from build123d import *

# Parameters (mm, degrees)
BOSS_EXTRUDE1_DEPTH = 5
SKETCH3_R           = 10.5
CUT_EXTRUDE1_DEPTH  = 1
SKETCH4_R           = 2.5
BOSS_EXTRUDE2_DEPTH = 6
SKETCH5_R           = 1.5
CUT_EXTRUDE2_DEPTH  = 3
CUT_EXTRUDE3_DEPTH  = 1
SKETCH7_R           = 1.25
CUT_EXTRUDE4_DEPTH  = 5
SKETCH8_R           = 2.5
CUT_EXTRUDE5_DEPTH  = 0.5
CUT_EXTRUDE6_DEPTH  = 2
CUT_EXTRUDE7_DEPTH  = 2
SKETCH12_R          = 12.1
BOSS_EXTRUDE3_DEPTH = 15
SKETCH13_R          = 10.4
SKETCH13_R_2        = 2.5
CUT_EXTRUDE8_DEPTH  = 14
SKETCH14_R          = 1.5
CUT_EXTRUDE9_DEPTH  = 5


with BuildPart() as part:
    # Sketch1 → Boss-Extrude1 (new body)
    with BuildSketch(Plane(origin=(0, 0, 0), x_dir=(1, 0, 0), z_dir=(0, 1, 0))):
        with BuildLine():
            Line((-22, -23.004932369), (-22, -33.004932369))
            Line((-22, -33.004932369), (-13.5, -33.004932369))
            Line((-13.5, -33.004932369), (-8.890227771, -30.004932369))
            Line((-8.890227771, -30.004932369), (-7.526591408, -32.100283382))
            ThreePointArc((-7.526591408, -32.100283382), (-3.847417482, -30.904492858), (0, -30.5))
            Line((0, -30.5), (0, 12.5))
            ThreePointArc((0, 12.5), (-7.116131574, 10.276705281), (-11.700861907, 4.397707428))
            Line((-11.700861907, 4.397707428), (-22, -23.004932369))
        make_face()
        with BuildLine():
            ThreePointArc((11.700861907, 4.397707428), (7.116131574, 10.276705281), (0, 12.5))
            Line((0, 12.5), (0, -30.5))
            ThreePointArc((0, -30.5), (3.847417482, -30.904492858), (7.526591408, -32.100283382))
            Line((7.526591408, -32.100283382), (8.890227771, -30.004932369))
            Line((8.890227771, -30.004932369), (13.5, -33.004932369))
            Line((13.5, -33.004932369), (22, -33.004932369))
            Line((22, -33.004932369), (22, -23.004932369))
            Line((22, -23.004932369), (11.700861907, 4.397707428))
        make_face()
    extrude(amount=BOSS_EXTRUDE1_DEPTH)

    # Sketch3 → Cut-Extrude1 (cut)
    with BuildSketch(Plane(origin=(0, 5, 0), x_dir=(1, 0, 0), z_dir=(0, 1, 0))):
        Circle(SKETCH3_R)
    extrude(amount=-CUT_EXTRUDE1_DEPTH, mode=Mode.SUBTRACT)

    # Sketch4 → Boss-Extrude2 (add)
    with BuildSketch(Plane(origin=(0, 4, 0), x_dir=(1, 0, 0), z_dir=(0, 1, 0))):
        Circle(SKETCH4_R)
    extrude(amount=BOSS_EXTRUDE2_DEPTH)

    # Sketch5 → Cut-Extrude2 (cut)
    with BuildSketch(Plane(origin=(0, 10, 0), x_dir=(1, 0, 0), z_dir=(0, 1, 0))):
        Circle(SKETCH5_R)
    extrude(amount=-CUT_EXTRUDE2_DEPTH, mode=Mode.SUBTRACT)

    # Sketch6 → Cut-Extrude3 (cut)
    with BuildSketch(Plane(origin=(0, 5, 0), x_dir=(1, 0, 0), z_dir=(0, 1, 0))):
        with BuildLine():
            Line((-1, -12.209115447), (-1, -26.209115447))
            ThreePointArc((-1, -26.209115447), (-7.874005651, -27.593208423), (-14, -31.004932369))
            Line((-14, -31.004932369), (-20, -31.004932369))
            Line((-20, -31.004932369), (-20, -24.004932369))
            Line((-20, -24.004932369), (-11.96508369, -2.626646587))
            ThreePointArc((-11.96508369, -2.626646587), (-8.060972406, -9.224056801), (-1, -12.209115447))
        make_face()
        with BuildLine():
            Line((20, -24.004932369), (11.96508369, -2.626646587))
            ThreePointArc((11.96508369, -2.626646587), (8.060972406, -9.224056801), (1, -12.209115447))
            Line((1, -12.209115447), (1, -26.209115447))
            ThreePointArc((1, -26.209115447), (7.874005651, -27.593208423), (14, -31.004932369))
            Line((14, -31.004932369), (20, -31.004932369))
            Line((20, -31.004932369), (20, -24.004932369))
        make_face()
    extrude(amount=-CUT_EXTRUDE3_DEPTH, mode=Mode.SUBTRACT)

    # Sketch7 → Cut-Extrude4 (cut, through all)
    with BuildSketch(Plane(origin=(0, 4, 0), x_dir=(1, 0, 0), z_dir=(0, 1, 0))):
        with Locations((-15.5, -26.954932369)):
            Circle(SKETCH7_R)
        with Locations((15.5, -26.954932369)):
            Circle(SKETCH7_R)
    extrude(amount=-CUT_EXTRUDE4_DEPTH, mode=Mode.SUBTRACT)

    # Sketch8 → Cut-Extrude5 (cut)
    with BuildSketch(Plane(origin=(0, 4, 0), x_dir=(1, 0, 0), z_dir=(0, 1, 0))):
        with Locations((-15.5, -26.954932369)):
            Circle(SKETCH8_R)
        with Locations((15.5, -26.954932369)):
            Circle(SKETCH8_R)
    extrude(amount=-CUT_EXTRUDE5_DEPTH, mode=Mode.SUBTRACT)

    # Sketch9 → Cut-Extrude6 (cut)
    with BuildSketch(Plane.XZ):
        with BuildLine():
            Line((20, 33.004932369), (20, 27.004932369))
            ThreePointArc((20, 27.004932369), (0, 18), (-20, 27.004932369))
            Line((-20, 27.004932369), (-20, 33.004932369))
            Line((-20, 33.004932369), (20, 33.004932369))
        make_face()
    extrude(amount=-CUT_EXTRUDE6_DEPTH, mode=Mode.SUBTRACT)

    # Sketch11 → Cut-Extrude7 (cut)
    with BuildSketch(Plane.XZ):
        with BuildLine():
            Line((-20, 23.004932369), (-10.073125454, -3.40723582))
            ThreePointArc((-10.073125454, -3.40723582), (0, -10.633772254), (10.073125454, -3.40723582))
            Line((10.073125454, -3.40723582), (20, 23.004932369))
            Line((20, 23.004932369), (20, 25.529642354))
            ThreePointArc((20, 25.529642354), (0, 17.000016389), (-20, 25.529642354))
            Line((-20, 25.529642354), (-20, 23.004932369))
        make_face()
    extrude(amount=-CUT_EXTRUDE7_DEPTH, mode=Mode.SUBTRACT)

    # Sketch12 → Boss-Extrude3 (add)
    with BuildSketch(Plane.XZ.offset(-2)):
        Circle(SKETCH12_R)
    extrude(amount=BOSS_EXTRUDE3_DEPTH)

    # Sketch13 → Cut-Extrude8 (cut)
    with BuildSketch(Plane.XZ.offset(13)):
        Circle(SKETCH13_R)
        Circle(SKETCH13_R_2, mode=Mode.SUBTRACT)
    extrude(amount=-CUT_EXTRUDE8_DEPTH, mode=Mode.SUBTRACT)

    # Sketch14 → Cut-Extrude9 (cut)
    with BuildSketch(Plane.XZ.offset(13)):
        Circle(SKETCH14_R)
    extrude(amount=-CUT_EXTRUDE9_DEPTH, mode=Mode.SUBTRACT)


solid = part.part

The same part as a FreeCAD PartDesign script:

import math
import FreeCAD as App
import Part
import Sketcher

doc = App.newDocument("Part")
params = doc.addObject("Spreadsheet::Sheet", "Params")
for row, (alias, value) in enumerate([
    ("sketch1_radius", "18.5 mm"),
    ("sketch1_radius2", "12.5 mm"),
    ("sketch1_height", "10 mm"),
    ("sketch1_width", "8.5 mm"),
    ("sketch1_length", "5.5 mm"),
    ("pad1_length", "5 mm"),
    ("sketch2_diameter", "21 mm"),
    ("pocket1_length", "1 mm"),
    ("sketch3_diameter", "5 mm"),
    ("pad2_length", "6 mm"),
    ("sketch4_diameter", "3 mm"),
    ("pocket2_length", "3 mm"),
    ("sketch5_width", "6 mm"),
    ("sketch5_height", "14 mm"),
    ("sketch5_height2", "7 mm"),
    ("sketch5_radius", "12.25 mm"),
    ("pocket3_length", "1 mm"),
    ("sketch6_diameter", "2.5 mm"),
    ("sketch7_diameter", "5 mm"),
    ("pocket5_length", "0.5 mm"),
    ("sketch8_width", "40 mm"),
    ("sketch8_height", "6 mm"),
    ("pocket6_length", "2 mm"),
    ("pocket7_length", "2 mm"),
    ("sketch10_diameter", "24.2 mm"),
    ("pad3_length", "15 mm"),
    ("sketch11_diameter", "5 mm"),
    ("sketch11_diameter2", "20.8 mm"),
    ("pocket8_length", "14 mm"),
    ("sketch12_diameter", "3 mm"),
    ("pocket9_length", "5 mm"),
], start=1):
    params.set(f"A{row}", alias)
    params.set(f"B{row}", "=" + value)
    params.setAlias(f"B{row}", alias)

body = doc.addObject("PartDesign::Body", "Body")

sketch1 = body.newObject("Sketcher::SketchObject", "Sketch")
sketch1.AttachmentSupport = (doc.getObject("XZ_Plane"), [""])
sketch1.MapMode = "FlatFace"
sketch1.addGeometry(Part.LineSegment(App.Vector(-22, 23, 0), App.Vector(-22, 33, 0)), False)
sketch1.addGeometry(Part.LineSegment(App.Vector(-22, 33, 0), App.Vector(-13.5, 33, 0)), False)
sketch1.addGeometry(Part.LineSegment(App.Vector(-13.5, 33, 0), App.Vector(-8.9, 30, 0)), False)
sketch1.addGeometry(Part.LineSegment(App.Vector(-8.9, 30, 0), App.Vector(-7.5, 32.1, 0)), False)
sketch1.addGeometry(Part.ArcOfCircle(Part.Circle(App.Vector(0, 49, 0), App.Vector(0, 0, 1), 18.5), math.radians(-114), math.radians(-90)), False)
sketch1.addGeometry(Part.ArcOfCircle(Part.Circle(App.Vector(0, 49, 0), App.Vector(0, 0, 1), 18.5), math.radians(-90), math.radians(-66)), False)
sketch1.addGeometry(Part.LineSegment(App.Vector(7.5, 32.1, 0), App.Vector(8.9, 30, 0)), False)
sketch1.addGeometry(Part.LineSegment(App.Vector(8.9, 30, 0), App.Vector(13.5, 33, 0)), False)
sketch1.addGeometry(Part.LineSegment(App.Vector(13.5, 33, 0), App.Vector(22, 33, 0)), False)
sketch1.addGeometry(Part.LineSegment(App.Vector(22, 33, 0), App.Vector(22, 23, 0)), False)
sketch1.addGeometry(Part.LineSegment(App.Vector(22, 23, 0), App.Vector(11.7, -4.4, 0)), False)
sketch1.addGeometry(Part.ArcOfCircle(Part.Circle(App.Vector(0, 0, 0), App.Vector(0, 0, 1), 12.5), math.radians(-90), math.radians(-21)), False)
sketch1.addGeometry(Part.ArcOfCircle(Part.Circle(App.Vector(0, 0, 0), App.Vector(0, 0, 1), 12.5), math.radians(-159), math.radians(-90)), False)
sketch1.addGeometry(Part.LineSegment(App.Vector(-11.7, -4.4, 0), App.Vector(-22, 23, 0)), False)
sketch1.addConstraint(Sketcher.Constraint("Coincident", 0, 2, 1, 1))
sketch1.addConstraint(Sketcher.Constraint("Coincident", 1, 2, 2, 1))
sketch1.addConstraint(Sketcher.Constraint("Coincident", 2, 2, 3, 1))
sketch1.addConstraint(Sketcher.Constraint("Coincident", 3, 2, 4, 1))
sketch1.addConstraint(Sketcher.Constraint("Tangent", 4, 2, 5, 1))
sketch1.addConstraint(Sketcher.Constraint("Coincident", 5, 2, 6, 1))
sketch1.addConstraint(Sketcher.Constraint("Coincident", 6, 2, 7, 1))
sketch1.addConstraint(Sketcher.Constraint("Coincident", 7, 2, 8, 1))
sketch1.addConstraint(Sketcher.Constraint("Coincident", 8, 2, 9, 1))
sketch1.addConstraint(Sketcher.Constraint("Coincident", 9, 2, 10, 1))
sketch1.addConstraint(Sketcher.Constraint("Tangent", 10, 2, 11, 2))
sketch1.addConstraint(Sketcher.Constraint("Tangent", 11, 1, 12, 2))
sketch1.addConstraint(Sketcher.Constraint("Tangent", 12, 1, 13, 1))
sketch1.addConstraint(Sketcher.Constraint("Coincident", 13, 2, 0, 1))
sketch1.addConstraint(Sketcher.Constraint("Vertical", 0))
sketch1.addConstraint(Sketcher.Constraint("Horizontal", 1))
sketch1.addConstraint(Sketcher.Constraint("Horizontal", 8))
sketch1.addConstraint(Sketcher.Constraint("Vertical", 9))
sketch1.addConstraint(Sketcher.Constraint("Coincident", 11, 3, -1, 1))
sketch1.addConstraint(Sketcher.Constraint("Equal", 4, 5))
sketch1.addConstraint(Sketcher.Constraint("Equal", 11, 12))
sketch1.addConstraint(Sketcher.Constraint("Symmetric", 3, 2, 5, 2, -2))
sketch1.addConstraint(Sketcher.Constraint("Symmetric", 2, 2, 6, 2, -2))
sketch1.addConstraint(Sketcher.Constraint("Symmetric", 1, 2, 7, 2, -2))
sketch1.addConstraint(Sketcher.Constraint("Symmetric", 9, 2, 13, 2, -2))
sketch1.addConstraint(Sketcher.Constraint("PointOnObject", 4, 2, -2))
sketch1.addConstraint(Sketcher.Constraint("PointOnObject", 11, 1, -2))
sketch1.addConstraint(Sketcher.Constraint("Perpendicular", 2, 3))
sketch1.addConstraint(Sketcher.Constraint("Radius", 4, 18.5))
sketch1.addConstraint(Sketcher.Constraint("Radius", 11, 12.5))
sketch1.addConstraint(Sketcher.Constraint("DistanceY", 0, 1, 0, 2, 10.0))
sketch1.addConstraint(Sketcher.Constraint("DistanceX", 1, 1, 1, 2, 8.5))
sketch1.addConstraint(Sketcher.Constraint("DistanceY", -1, 1, 4, 3, 49.0))
sketch1.addConstraint(Sketcher.Constraint("DistanceX", 0, 2, -1, 1, 22.0))
sketch1.addConstraint(Sketcher.Constraint("DistanceY", 2, 2, 1, 2, 3.0))
sketch1.addConstraint(Sketcher.Constraint("Distance", 2, 5.5))
sketch1.addConstraint(Sketcher.Constraint("Distance", 3, 2.5))
sketch1.setExpression("Constraints[28]", "Params.sketch1_radius")
sketch1.setExpression("Constraints[29]", "Params.sketch1_radius2")
sketch1.setExpression("Constraints[30]", "Params.sketch1_height")
sketch1.setExpression("Constraints[31]", "Params.sketch1_width")
sketch1.setExpression("Constraints[35]", "Params.sketch1_length")
pad1 = body.newObject("PartDesign::Pad", "Pad")
pad1.Profile = sketch1
pad1.setExpression("Length", "Params.pad1_length")
pad1.Reversed = True

sketch2 = body.newObject("Sketcher::SketchObject", "Sketch001")
sketch2.AttachmentSupport = (doc.getObject("XZ_Plane"), [""])
sketch2.MapMode = "FlatFace"
sketch2.AttachmentOffset = App.Placement(App.Vector(0, 0, -5), App.Rotation())
sketch2.addGeometry(Part.Circle(App.Vector(0, 0, 0), App.Vector(0, 0, 1), 10), False)
sketch2.addConstraint(Sketcher.Constraint("Coincident", 0, 3, -1, 1))
sketch2.addConstraint(Sketcher.Constraint("Diameter", 0, 21.0))
sketch2.setExpression("Constraints[1]", "Params.sketch2_diameter")
pocket1 = body.newObject("PartDesign::Pocket", "Pocket")
pocket1.Profile = sketch2
pocket1.setExpression("Length", "Params.pocket1_length")
pocket1.Reversed = True

sketch3 = body.newObject("Sketcher::SketchObject", "Sketch002")
sketch3.AttachmentSupport = (doc.getObject("XZ_Plane"), [""])
sketch3.MapMode = "FlatFace"
sketch3.AttachmentOffset = App.Placement(App.Vector(0, 0, -4), App.Rotation())
sketch3.addGeometry(Part.Circle(App.Vector(0, 0, 0), App.Vector(0, 0, 1), 2.5), False)
sketch3.addConstraint(Sketcher.Constraint("Coincident", 0, 3, -1, 1))
sketch3.addConstraint(Sketcher.Constraint("Diameter", 0, 5.0))
sketch3.setExpression("Constraints[1]", "Params.sketch3_diameter")
pad2 = body.newObject("PartDesign::Pad", "Pad001")
pad2.Profile = sketch3
pad2.setExpression("Length", "Params.pad2_length")
pad2.Reversed = True

sketch4 = body.newObject("Sketcher::SketchObject", "Sketch003")
sketch4.AttachmentSupport = (doc.getObject("XZ_Plane"), [""])
sketch4.MapMode = "FlatFace"
sketch4.AttachmentOffset = App.Placement(App.Vector(0, 0, -10), App.Rotation())
sketch4.addGeometry(Part.Circle(App.Vector(0, 0, 0), App.Vector(0, 0, 1), 1.5), False)
sketch4.addConstraint(Sketcher.Constraint("Coincident", 0, 3, -1, 1))
sketch4.addConstraint(Sketcher.Constraint("Diameter", 0, 3.0))
sketch4.setExpression("Constraints[1]", "Params.sketch4_diameter")
pocket2 = body.newObject("PartDesign::Pocket", "Pocket001")
pocket2.Profile = sketch4
pocket2.setExpression("Length", "Params.pocket2_length")
pocket2.Reversed = True

sketch5 = body.newObject("Sketcher::SketchObject", "Sketch004")
sketch5.AttachmentSupport = (doc.getObject("XZ_Plane"), [""])
sketch5.MapMode = "FlatFace"
sketch5.AttachmentOffset = App.Placement(App.Vector(0, 0, -5), App.Rotation())
sketch5.addGeometry(Part.LineSegment(App.Vector(-1, 26, 0), App.Vector(-1, 12, 0)), False)
sketch5.addGeometry(Part.ArcOfCircle(Part.Circle(App.Vector(0, 0, 0), App.Vector(0, 0, 1), 12), math.radians(95), math.radians(168)), False)
sketch5.addGeometry(Part.LineSegment(App.Vector(-12, 3, 0), App.Vector(-20, 24, 0)), False)
sketch5.addGeometry(Part.LineSegment(App.Vector(-20, 24, 0), App.Vector(-20, 31, 0)), False)
sketch5.addGeometry(Part.LineSegment(App.Vector(-20, 31, 0), App.Vector(-14, 31, 0)), False)
sketch5.addGeometry(Part.ArcOfCircle(Part.Circle(App.Vector(0, 49, 0), App.Vector(0, 0, 1), 23), math.radians(-128), math.radians(-93)), False)
sketch5.addGeometry(Part.LineSegment(App.Vector(20, 24, 0), App.Vector(12, 3, 0)), False)
sketch5.addGeometry(Part.ArcOfCircle(Part.Circle(App.Vector(0, 0, 0), App.Vector(0, 0, 1), 12), math.radians(12), math.radians(85)), False)
sketch5.addGeometry(Part.LineSegment(App.Vector(1, 12, 0), App.Vector(1, 26, 0)), False)
sketch5.addGeometry(Part.ArcOfCircle(Part.Circle(App.Vector(0, 49, 0), App.Vector(0, 0, 1), 23), math.radians(-87), math.radians(-52)), False)
sketch5.addGeometry(Part.LineSegment(App.Vector(14, 31, 0), App.Vector(20, 31, 0)), False)
sketch5.addGeometry(Part.LineSegment(App.Vector(20, 31, 0), App.Vector(20, 24, 0)), False)
sketch5.addConstraint(Sketcher.Constraint("Coincident", 0, 2, 1, 1))
sketch5.addConstraint(Sketcher.Constraint("Coincident", 1, 2, 2, 1))
sketch5.addConstraint(Sketcher.Constraint("Coincident", 2, 2, 3, 1))
sketch5.addConstraint(Sketcher.Constraint("Coincident", 3, 2, 4, 1))
sketch5.addConstraint(Sketcher.Constraint("Coincident", 4, 2, 5, 1))
sketch5.addConstraint(Sketcher.Constraint("Coincident", 5, 2, 0, 1))
sketch5.addConstraint(Sketcher.Constraint("Coincident", 6, 2, 7, 1))
sketch5.addConstraint(Sketcher.Constraint("Coincident", 7, 2, 8, 1))
sketch5.addConstraint(Sketcher.Constraint("Coincident", 8, 2, 9, 1))
sketch5.addConstraint(Sketcher.Constraint("Coincident", 9, 2, 10, 1))
sketch5.addConstraint(Sketcher.Constraint("Coincident", 10, 2, 11, 1))
sketch5.addConstraint(Sketcher.Constraint("Coincident", 11, 2, 6, 1))
sketch5.addConstraint(Sketcher.Constraint("Vertical", 0))
sketch5.addConstraint(Sketcher.Constraint("Vertical", 3))
sketch5.addConstraint(Sketcher.Constraint("Horizontal", 4))
sketch5.addConstraint(Sketcher.Constraint("Vertical", 8))
sketch5.addConstraint(Sketcher.Constraint("Horizontal", 10))
sketch5.addConstraint(Sketcher.Constraint("Vertical", 11))
sketch5.addConstraint(Sketcher.Constraint("Coincident", 1, 3, -1, 1))
sketch5.addConstraint(Sketcher.Constraint("Coincident", 7, 3, -1, 1))
sketch5.addConstraint(Sketcher.Constraint("Coincident", 9, 3, 5, 3))
sketch5.addConstraint(Sketcher.Constraint("Equal", 1, 7))
sketch5.addConstraint(Sketcher.Constraint("Equal", 5, 9))
sketch5.addConstraint(Sketcher.Constraint("Symmetric", 5, 2, 8, 2, -2))
sketch5.addConstraint(Sketcher.Constraint("Symmetric", 3, 2, 10, 2, -2))
sketch5.addConstraint(Sketcher.Constraint("Horizontal", 1, 2, 6, 2))
sketch5.addConstraint(Sketcher.Constraint("Horizontal", 2, 2, 11, 2))
sketch5.addConstraint(Sketcher.Constraint("DistanceX", 4, 1, 4, 2, 6.0))
sketch5.addConstraint(Sketcher.Constraint("DistanceY", 0, 2, 0, 1, 14.0))
sketch5.addConstraint(Sketcher.Constraint("DistanceY", 3, 1, 3, 2, 7.0))
sketch5.addConstraint(Sketcher.Constraint("Radius", 1, 12.25))
sketch5.addConstraint(Sketcher.Constraint("DistanceX", 0, 2, -1, 1, 1.0))
sketch5.addConstraint(Sketcher.Constraint("DistanceX", 2, 2, -1, 1, 20.0))
sketch5.addConstraint(Sketcher.Constraint("Radius", 5, 22.750114))
sketch5.addConstraint(Sketcher.Constraint("DistanceY", 1, 2, 0, 2, 9.582469))
sketch5.setExpression("Constraints[27]", "Params.sketch5_width")
sketch5.setExpression("Constraints[28]", "Params.sketch5_height")
sketch5.setExpression("Constraints[29]", "Params.sketch5_height2")
sketch5.setExpression("Constraints[30]", "Params.sketch5_radius")
pocket3 = body.newObject("PartDesign::Pocket", "Pocket002")
pocket3.Profile = sketch5
pocket3.setExpression("Length", "Params.pocket3_length")
pocket3.Reversed = True

sketch6 = body.newObject("Sketcher::SketchObject", "Sketch005")
sketch6.AttachmentSupport = (doc.getObject("XZ_Plane"), [""])
sketch6.MapMode = "FlatFace"
sketch6.AttachmentOffset = App.Placement(App.Vector(0, 0, -4), App.Rotation())
sketch6.addGeometry(Part.Circle(App.Vector(-15.5, 27, 0), App.Vector(0, 0, 1), 1.2), False)
sketch6.addGeometry(Part.Circle(App.Vector(15.5, 27, 0), App.Vector(0, 0, 1), 1.2), False)
sketch6.addConstraint(Sketcher.Constraint("Equal", 0, 1))
sketch6.addConstraint(Sketcher.Constraint("Symmetric", 0, 3, 1, 3, -2))
sketch6.addConstraint(Sketcher.Constraint("Diameter", 0, 2.5))
sketch6.addConstraint(Sketcher.Constraint("DistanceX", 0, 3, 1, 3, 31.0))
sketch6.addConstraint(Sketcher.Constraint("DistanceY", -1, 1, 0, 3, 26.954932))
sketch6.setExpression("Constraints[2]", "Params.sketch6_diameter")
pocket4 = body.newObject("PartDesign::Pocket", "Pocket003")
pocket4.Profile = sketch6
pocket4.Type = "ThroughAll"
pocket4.Reversed = True

sketch7 = body.newObject("Sketcher::SketchObject", "Sketch006")
sketch7.AttachmentSupport = (doc.getObject("XZ_Plane"), [""])
sketch7.MapMode = "FlatFace"
sketch7.AttachmentOffset = App.Placement(App.Vector(0, 0, -4), App.Rotation())
sketch7.addGeometry(Part.Circle(App.Vector(-15.5, 27, 0), App.Vector(0, 0, 1), 2.5), False)
sketch7.addGeometry(Part.Circle(App.Vector(15.5, 27, 0), App.Vector(0, 0, 1), 2.5), False)
sketch7.addConstraint(Sketcher.Constraint("Equal", 0, 1))
sketch7.addConstraint(Sketcher.Constraint("Symmetric", 0, 3, 1, 3, -2))
sketch7.addConstraint(Sketcher.Constraint("Diameter", 0, 5.0))
sketch7.addConstraint(Sketcher.Constraint("DistanceX", 0, 3, 1, 3, 31.0))
sketch7.addConstraint(Sketcher.Constraint("DistanceY", -1, 1, 0, 3, 26.954932))
sketch7.setExpression("Constraints[2]", "Params.sketch7_diameter")
pocket5 = body.newObject("PartDesign::Pocket", "Pocket004")
pocket5.Profile = sketch7
pocket5.setExpression("Length", "Params.pocket5_length")
pocket5.Reversed = True

sketch8 = body.newObject("Sketcher::SketchObject", "Sketch007")
sketch8.AttachmentSupport = (doc.getObject("XZ_Plane"), [""])
sketch8.MapMode = "FlatFace"
sketch8.addGeometry(Part.LineSegment(App.Vector(20, 27, 0), App.Vector(20, 33, 0)), False)
sketch8.addGeometry(Part.LineSegment(App.Vector(20, 33, 0), App.Vector(-20, 33, 0)), False)
sketch8.addGeometry(Part.LineSegment(App.Vector(-20, 33, 0), App.Vector(-20, 27, 0)), False)
sketch8.addGeometry(Part.ArcOfCircle(Part.Circle(App.Vector(0, 45, 0), App.Vector(0, 0, 1), 27), math.radians(-138), math.radians(-42)), False)
sketch8.addConstraint(Sketcher.Constraint("Coincident", 0, 2, 1, 1))
sketch8.addConstraint(Sketcher.Constraint("Coincident", 1, 2, 2, 1))
sketch8.addConstraint(Sketcher.Constraint("Coincident", 2, 2, 3, 1))
sketch8.addConstraint(Sketcher.Constraint("Coincident", 3, 2, 0, 1))
sketch8.addConstraint(Sketcher.Constraint("Vertical", 0))
sketch8.addConstraint(Sketcher.Constraint("Horizontal", 1))
sketch8.addConstraint(Sketcher.Constraint("Vertical", 2))
sketch8.addConstraint(Sketcher.Constraint("Symmetric", 2, 2, 3, 2, -2))
sketch8.addConstraint(Sketcher.Constraint("DistanceX", 1, 2, 1, 1, 40.0))
sketch8.addConstraint(Sketcher.Constraint("DistanceY", 0, 1, 0, 2, 6.0))
sketch8.addConstraint(Sketcher.Constraint("Radius", 3, 26.712516))
sketch8.addConstraint(Sketcher.Constraint("DistanceY", -1, 1, 3, 3, 44.712516))
sketch8.setExpression("Constraints[8]", "Params.sketch8_width")
sketch8.setExpression("Constraints[9]", "Params.sketch8_height")
pocket6 = body.newObject("PartDesign::Pocket", "Pocket005")
pocket6.Profile = sketch8
pocket6.setExpression("Length", "Params.pocket6_length")

sketch9 = body.newObject("Sketcher::SketchObject", "Sketch008")
sketch9.AttachmentSupport = (doc.getObject("XZ_Plane"), [""])
sketch9.MapMode = "FlatFace"
sketch9.addGeometry(Part.LineSegment(App.Vector(-20, 23, 0), App.Vector(-10.1, -3.4, 0)), False)
sketch9.addGeometry(Part.ArcOfCircle(Part.Circle(App.Vector(0, 0, 0), App.Vector(0, 0, 1), 10.6), math.radians(-161), math.radians(-19)), False)
sketch9.addGeometry(Part.LineSegment(App.Vector(10.1, -3.4, 0), App.Vector(20, 23, 0)), False)
sketch9.addGeometry(Part.LineSegment(App.Vector(20, 23, 0), App.Vector(20, 25.5, 0)), False)
sketch9.addGeometry(Part.ArcOfCircle(Part.Circle(App.Vector(0, 44.7, 0), App.Vector(0, 0, 1), 27.7), math.radians(-136), math.radians(-44)), False)
sketch9.addGeometry(Part.LineSegment(App.Vector(-20, 25.5, 0), App.Vector(-20, 23, 0)), False)
sketch9.addConstraint(Sketcher.Constraint("Coincident", 0, 2, 1, 1))
sketch9.addConstraint(Sketcher.Constraint("Coincident", 1, 2, 2, 1))
sketch9.addConstraint(Sketcher.Constraint("Coincident", 2, 2, 3, 1))
sketch9.addConstraint(Sketcher.Constraint("Coincident", 3, 2, 4, 2))
sketch9.addConstraint(Sketcher.Constraint("Coincident", 4, 1, 5, 1))
sketch9.addConstraint(Sketcher.Constraint("Coincident", 5, 2, 0, 1))
sketch9.addConstraint(Sketcher.Constraint("Vertical", 3))
sketch9.addConstraint(Sketcher.Constraint("Vertical", 5))
sketch9.addConstraint(Sketcher.Constraint("Coincident", 1, 3, -1, 1))
sketch9.addConstraint(Sketcher.Constraint("Symmetric", 3, 2, 4, 1, -2))
sketch9.addConstraint(Sketcher.Constraint("Horizontal", 0, 2, 1, 2))
sketch9.addConstraint(Sketcher.Constraint("Horizontal", 2, 2, 5, 2))
sketch9.addConstraint(Sketcher.Constraint("DistanceX", -1, 1, 2, 2, 20.0))
sketch9.addConstraint(Sketcher.Constraint("Radius", 4, 27.7125))
sketch9.addConstraint(Sketcher.Constraint("Radius", 1, 10.633772))
sketch9.addConstraint(Sketcher.Constraint("DistanceY", 3, 1, 3, 2, 2.52471))
sketch9.addConstraint(Sketcher.Constraint("Distance", 0, 28.21605))
sketch9.addConstraint(Sketcher.Constraint("DistanceX", 0, 2, 1, 2, 20.146251))
pocket7 = body.newObject("PartDesign::Pocket", "Pocket006")
pocket7.Profile = sketch9
pocket7.setExpression("Length", "Params.pocket7_length")

sketch10 = body.newObject("Sketcher::SketchObject", "Sketch009")
sketch10.AttachmentSupport = (doc.getObject("XZ_Plane"), [""])
sketch10.MapMode = "FlatFace"
sketch10.AttachmentOffset = App.Placement(App.Vector(0, 0, -2), App.Rotation())
sketch10.addGeometry(Part.Circle(App.Vector(0, 0, 0), App.Vector(0, 0, 1), 12), False)
sketch10.addConstraint(Sketcher.Constraint("Coincident", 0, 3, -1, 1))
sketch10.addConstraint(Sketcher.Constraint("Diameter", 0, 24.2))
sketch10.setExpression("Constraints[1]", "Params.sketch10_diameter")
pad3 = body.newObject("PartDesign::Pad", "Pad002")
pad3.Profile = sketch10
pad3.setExpression("Length", "Params.pad3_length")

sketch11 = body.newObject("Sketcher::SketchObject", "Sketch010")
sketch11.AttachmentSupport = (doc.getObject("XZ_Plane"), [""])
sketch11.MapMode = "FlatFace"
sketch11.AttachmentOffset = App.Placement(App.Vector(0, 0, 13), App.Rotation())
sketch11.addGeometry(Part.Circle(App.Vector(0, 0, 0), App.Vector(0, 0, 1), 10.4), False)
sketch11.addGeometry(Part.Circle(App.Vector(0, 0, 0), App.Vector(0, 0, 1), 2.5), False)
sketch11.addConstraint(Sketcher.Constraint("Coincident", 0, 3, -1, 1))
sketch11.addConstraint(Sketcher.Constraint("Coincident", 1, 3, -1, 1))
sketch11.addConstraint(Sketcher.Constraint("Diameter", 1, 5.0))
sketch11.addConstraint(Sketcher.Constraint("Diameter", 0, 20.8))
sketch11.setExpression("Constraints[2]", "Params.sketch11_diameter")
sketch11.setExpression("Constraints[3]", "Params.sketch11_diameter2")
pocket8 = body.newObject("PartDesign::Pocket", "Pocket007")
pocket8.Profile = sketch11
pocket8.setExpression("Length", "Params.pocket8_length")

sketch12 = body.newObject("Sketcher::SketchObject", "Sketch011")
sketch12.AttachmentSupport = (doc.getObject("XZ_Plane"), [""])
sketch12.MapMode = "FlatFace"
sketch12.AttachmentOffset = App.Placement(App.Vector(0, 0, 13), App.Rotation())
sketch12.addGeometry(Part.Circle(App.Vector(0, 0, 0), App.Vector(0, 0, 1), 1.5), False)
sketch12.addConstraint(Sketcher.Constraint("Coincident", 0, 3, -1, 1))
sketch12.addConstraint(Sketcher.Constraint("Diameter", 0, 3.0))
sketch12.setExpression("Constraints[1]", "Params.sketch12_diameter")
pocket9 = body.newObject("PartDesign::Pocket", "Pocket008")
pocket9.Profile = sketch12
pocket9.setExpression("Length", "Params.pocket9_length")

doc.recompute()
